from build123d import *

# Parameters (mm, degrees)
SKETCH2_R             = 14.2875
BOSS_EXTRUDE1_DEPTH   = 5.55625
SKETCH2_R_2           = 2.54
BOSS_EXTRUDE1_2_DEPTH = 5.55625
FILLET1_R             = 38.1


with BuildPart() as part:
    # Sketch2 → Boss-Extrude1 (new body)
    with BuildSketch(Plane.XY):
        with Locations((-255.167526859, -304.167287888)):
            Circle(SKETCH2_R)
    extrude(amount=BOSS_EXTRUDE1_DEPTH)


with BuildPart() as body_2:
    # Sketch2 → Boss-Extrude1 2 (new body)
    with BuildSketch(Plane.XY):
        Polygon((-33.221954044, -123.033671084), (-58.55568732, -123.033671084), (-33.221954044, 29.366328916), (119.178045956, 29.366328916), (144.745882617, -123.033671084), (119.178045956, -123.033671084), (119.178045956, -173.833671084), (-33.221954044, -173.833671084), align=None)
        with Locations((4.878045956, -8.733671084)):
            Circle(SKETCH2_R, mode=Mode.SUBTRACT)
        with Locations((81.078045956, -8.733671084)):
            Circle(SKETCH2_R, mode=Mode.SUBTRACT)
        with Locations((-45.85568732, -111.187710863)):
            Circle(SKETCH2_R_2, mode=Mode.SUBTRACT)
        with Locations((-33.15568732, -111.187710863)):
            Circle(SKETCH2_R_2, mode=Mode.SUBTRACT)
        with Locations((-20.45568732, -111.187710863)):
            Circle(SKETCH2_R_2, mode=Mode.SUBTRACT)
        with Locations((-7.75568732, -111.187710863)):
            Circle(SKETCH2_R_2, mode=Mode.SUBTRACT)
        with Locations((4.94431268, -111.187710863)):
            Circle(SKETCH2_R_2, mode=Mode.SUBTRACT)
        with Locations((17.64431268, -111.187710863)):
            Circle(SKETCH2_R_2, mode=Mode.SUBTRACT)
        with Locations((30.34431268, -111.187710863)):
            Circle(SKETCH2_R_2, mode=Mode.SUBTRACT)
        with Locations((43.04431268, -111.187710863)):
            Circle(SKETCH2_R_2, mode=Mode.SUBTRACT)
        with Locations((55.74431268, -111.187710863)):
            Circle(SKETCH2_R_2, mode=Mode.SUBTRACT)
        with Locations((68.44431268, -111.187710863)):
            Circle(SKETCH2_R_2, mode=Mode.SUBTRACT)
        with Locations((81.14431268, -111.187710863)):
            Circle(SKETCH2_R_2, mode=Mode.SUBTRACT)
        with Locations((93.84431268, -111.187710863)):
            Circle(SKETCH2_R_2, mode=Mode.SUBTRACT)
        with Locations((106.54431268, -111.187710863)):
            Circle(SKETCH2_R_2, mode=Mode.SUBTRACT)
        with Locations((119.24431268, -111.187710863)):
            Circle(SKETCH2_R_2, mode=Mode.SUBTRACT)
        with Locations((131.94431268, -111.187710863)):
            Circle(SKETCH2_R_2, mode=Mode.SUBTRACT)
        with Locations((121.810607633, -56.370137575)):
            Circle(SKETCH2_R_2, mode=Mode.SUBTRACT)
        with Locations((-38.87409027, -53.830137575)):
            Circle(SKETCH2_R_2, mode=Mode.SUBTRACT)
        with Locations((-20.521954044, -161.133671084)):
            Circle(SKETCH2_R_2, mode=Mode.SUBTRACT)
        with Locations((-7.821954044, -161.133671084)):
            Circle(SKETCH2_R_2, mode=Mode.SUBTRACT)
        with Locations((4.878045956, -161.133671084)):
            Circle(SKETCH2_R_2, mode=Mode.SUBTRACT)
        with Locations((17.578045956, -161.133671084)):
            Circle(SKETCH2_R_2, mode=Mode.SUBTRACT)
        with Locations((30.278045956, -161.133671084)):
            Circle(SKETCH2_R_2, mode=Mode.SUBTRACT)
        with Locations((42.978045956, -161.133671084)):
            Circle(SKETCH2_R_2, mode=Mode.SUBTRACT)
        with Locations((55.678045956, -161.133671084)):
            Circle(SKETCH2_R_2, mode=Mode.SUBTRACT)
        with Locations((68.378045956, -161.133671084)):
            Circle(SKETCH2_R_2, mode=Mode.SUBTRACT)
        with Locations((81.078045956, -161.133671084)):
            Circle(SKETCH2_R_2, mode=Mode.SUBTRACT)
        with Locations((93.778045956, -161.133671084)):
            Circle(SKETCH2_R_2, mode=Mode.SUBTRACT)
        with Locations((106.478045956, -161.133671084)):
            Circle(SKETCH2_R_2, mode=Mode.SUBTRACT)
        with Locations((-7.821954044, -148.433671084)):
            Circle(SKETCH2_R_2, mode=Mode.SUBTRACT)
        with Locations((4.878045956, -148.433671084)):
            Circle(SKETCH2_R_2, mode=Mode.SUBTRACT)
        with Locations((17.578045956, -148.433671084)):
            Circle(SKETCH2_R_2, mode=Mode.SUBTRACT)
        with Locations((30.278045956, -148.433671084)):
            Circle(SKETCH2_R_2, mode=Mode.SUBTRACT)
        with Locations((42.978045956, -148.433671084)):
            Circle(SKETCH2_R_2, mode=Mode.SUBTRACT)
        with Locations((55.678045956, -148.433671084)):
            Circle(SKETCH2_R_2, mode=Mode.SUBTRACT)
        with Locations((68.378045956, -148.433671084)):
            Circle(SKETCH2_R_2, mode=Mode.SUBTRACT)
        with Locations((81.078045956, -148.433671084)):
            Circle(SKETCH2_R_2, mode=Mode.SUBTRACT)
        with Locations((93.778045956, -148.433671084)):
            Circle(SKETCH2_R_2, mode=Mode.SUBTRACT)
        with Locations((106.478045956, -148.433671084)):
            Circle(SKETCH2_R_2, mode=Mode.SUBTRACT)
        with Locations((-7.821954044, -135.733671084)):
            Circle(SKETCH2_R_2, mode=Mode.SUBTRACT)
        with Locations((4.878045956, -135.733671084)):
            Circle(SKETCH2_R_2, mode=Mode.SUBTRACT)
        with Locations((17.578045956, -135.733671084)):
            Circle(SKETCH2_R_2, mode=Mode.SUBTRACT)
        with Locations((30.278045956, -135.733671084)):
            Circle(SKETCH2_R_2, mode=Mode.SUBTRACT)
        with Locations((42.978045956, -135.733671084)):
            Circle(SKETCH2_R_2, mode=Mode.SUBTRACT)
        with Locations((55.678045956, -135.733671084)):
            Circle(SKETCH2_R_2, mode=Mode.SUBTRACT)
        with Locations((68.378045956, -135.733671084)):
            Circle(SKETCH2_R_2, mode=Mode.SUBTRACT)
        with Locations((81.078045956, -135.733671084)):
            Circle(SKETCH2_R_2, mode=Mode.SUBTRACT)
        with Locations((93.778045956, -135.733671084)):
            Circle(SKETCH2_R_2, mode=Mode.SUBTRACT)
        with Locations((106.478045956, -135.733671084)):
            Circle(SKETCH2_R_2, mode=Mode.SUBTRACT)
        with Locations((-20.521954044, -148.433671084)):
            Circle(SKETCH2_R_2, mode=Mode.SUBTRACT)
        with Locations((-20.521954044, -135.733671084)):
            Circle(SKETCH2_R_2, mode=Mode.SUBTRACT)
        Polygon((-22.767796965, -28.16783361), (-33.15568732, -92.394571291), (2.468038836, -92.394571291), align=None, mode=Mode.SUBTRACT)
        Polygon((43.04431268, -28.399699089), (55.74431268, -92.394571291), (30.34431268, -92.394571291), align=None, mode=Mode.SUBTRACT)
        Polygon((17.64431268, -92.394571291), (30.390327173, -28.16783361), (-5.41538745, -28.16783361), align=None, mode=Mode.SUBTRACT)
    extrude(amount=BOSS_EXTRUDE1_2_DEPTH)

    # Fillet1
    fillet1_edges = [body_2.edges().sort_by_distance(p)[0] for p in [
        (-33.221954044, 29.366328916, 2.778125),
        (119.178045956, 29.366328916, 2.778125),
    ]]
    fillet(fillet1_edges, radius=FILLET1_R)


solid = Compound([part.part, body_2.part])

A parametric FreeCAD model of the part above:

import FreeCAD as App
import Part
import Sketcher
from FreeCAD import Vector
Q = App.Units.Quantity


def edges_at(feature, points):
    """Names of the edges that pass closest to the given points."""
    edges = feature.Shape.Edges
    near = lambda p: min(range(len(edges)), key=lambda i: edges[i].distToShape(Part.Vertex(*p))[0])
    return sorted({f"Edge{near(p) + 1}" for p in points})


def add_polygon(sketch, points):
    """Adds a closed chain of lines whose ends are joined by coincident constraints."""
    first, n = sketch.GeometryCount, len(points)
    for a, b in zip(points, points[1:] + points[:1]):
        sketch.addGeometry(Part.LineSegment(App.Vector(*a, 0), App.Vector(*b, 0)), False)
    for i in range(n):
        sketch.addConstraint(Sketcher.Constraint("Coincident", first + i, 2, first + (i + 1) % n, 1))

doc = App.newDocument("Part")
body = doc.addObject("PartDesign::Body", "Body")

# Sketch on XY plane
sketch1 = body.newObject("Sketcher::SketchObject", "Sketch")
sketch1.AttachmentSupport = (doc.getObject("XY_Plane"), [""])
sketch1.MapMode = "FlatFace"
sketch1.addGeometry(Part.Circle(Vector(-255.167527, -304.167288, 0), Vector(0, 0, 1), 14.2875), False)
sketch1.addConstraint([
    Sketcher.Constraint("Diameter", 0, Q("1.125 in")),
    Sketcher.Constraint("DistanceX", 0, 3, -1, 1, Q("255.167527 mm")),
    Sketcher.Constraint("DistanceY", 0, 3, -1, 1, Q("304.167288 mm")),
])
pad1 = body.newObject("PartDesign::Pad", "Pad")
pad1.Profile = sketch1
pad1.Length = Q("0.21875 in")
body2 = doc.addObject("PartDesign::Body", "Body001")

# Sketch on XY plane
sketch2 = body2.newObject("Sketcher::SketchObject", "Sketch001")
sketch2.AttachmentSupport = (doc.getObject("XY_Plane001"), [""])
sketch2.MapMode = "FlatFace"
add_polygon(sketch2, [(-58.555687, -123.033671), (-33.221954, -123.033671), (-33.221954, -173.833671), (119.178046, -173.833671), (119.178046, -123.033671), (144.745883, -123.033671), (119.178046, 29.366329), (-33.221954, 29.366329)])  # lines 0-7
sketch2.addGeometry(Part.Circle(Vector(106.478046, -161.133671, 0), Vector(0, 0, 1), 2.54), False)  # 8
sketch2.addGeometry(Part.Circle(Vector(93.778046, -161.133671, 0), Vector(0, 0, 1), 2.54), False)  # 9
sketch2.addGeometry(Part.Circle(Vector(106.478046, -148.433671, 0), Vector(0, 0, 1), 2.54), False)  # 10
sketch2.addGeometry(Part.Circle(Vector(93.778046, -148.433671, 0), Vector(0, 0, 1), 2.54), False)  # 11
sketch2.addGeometry(Part.Circle(Vector(106.478046, -135.733671, 0), Vector(0, 0, 1), 2.54), False)  # 12
sketch2.addGeometry(Part.Circle(Vector(93.778046, -135.733671, 0), Vector(0, 0, 1), 2.54), False)  # 13
sketch2.addGeometry(Part.Circle(Vector(81.078046, -161.133671, 0), Vector(0, 0, 1), 2.54), False)  # 14
sketch2.addGeometry(Part.Circle(Vector(68.378046, -161.133671, 0), Vector(0, 0, 1), 2.54), False)  # 15
sketch2.addGeometry(Part.Circle(Vector(81.078046, -148.433671, 0), Vector(0, 0, 1), 2.54), False)  # 16
sketch2.addGeometry(Part.Circle(Vector(68.378046, -148.433671, 0), Vector(0, 0, 1), 2.54), False)  # 17
sketch2.addGeometry(Part.Circle(Vector(55.678046, -161.133671, 0), Vector(0, 0, 1), 2.54), False)  # 18
sketch2.addGeometry(Part.Circle(Vector(55.678046, -148.433671, 0), Vector(0, 0, 1), 2.54), False)  # 19
sketch2.addGeometry(Part.Circle(Vector(81.078046, -135.733671, 0), Vector(0, 0, 1), 2.54), False)  # 20
sketch2.addGeometry(Part.Circle(Vector(68.378046, -135.733671, 0), Vector(0, 0, 1), 2.54), False)  # 21
sketch2.addGeometry(Part.Circle(Vector(55.678046, -135.733671, 0), Vector(0, 0, 1), 2.54), False)  # 22
sketch2.addGeometry(Part.Circle(Vector(131.944313, -111.187711, 0), Vector(0, 0, 1), 2.54), False)  # 23
sketch2.addGeometry(Part.Circle(Vector(119.244313, -111.187711, 0), Vector(0, 0, 1), 2.54), False)  # 24
sketch2.addGeometry(Part.Circle(Vector(106.544313, -111.187711, 0), Vector(0, 0, 1), 2.54), False)  # 25
sketch2.addGeometry(Part.Circle(Vector(93.844313, -111.187711, 0), Vector(0, 0, 1), 2.54), False)  # 26
sketch2.addGeometry(Part.Circle(Vector(81.144313, -111.187711, 0), Vector(0, 0, 1), 2.54), False)  # 27
sketch2.addGeometry(Part.Circle(Vector(68.444313, -111.187711, 0), Vector(0, 0, 1), 2.54), False)  # 28
sketch2.addGeometry(Part.Circle(Vector(55.744313, -111.187711, 0), Vector(0, 0, 1), 2.54), False)  # 29
sketch2.addGeometry(Part.Circle(Vector(42.978046, -161.133671, 0), Vector(0, 0, 1), 2.54), False)  # 30
sketch2.addGeometry(Part.Circle(Vector(30.278046, -161.133671, 0), Vector(0, 0, 1), 2.54), False)  # 31
sketch2.addGeometry(Part.Circle(Vector(42.978046, -148.433671, 0), Vector(0, 0, 1), 2.54), False)  # 32
sketch2.addGeometry(Part.Circle(Vector(30.278046, -148.433671, 0), Vector(0, 0, 1), 2.54), False)  # 33
sketch2.addGeometry(Part.Circle(Vector(17.578046, -161.133671, 0), Vector(0, 0, 1), 2.54), False)  # 34
sketch2.addGeometry(Part.Circle(Vector(4.878046, -161.133671, 0), Vector(0, 0, 1), 2.54), False)  # 35
sketch2.addGeometry(Part.Circle(Vector(17.578046, -148.433671, 0), Vector(0, 0, 1), 2.54), False)  # 36
sketch2.addGeometry(Part.Circle(Vector(4.878046, -148.433671, 0), Vector(0, 0, 1), 2.54), False)  # 37
sketch2.addGeometry(Part.Circle(Vector(42.978046, -135.733671, 0), Vector(0, 0, 1), 2.54), False)  # 38
sketch2.addGeometry(Part.Circle(Vector(30.278046, -135.733671, 0), Vector(0, 0, 1), 2.54), False)  # 39
sketch2.addGeometry(Part.Circle(Vector(17.578046, -135.733671, 0), Vector(0, 0, 1), 2.54), False)  # 40
sketch2.addGeometry(Part.Circle(Vector(4.878046, -135.733671, 0), Vector(0, 0, 1), 2.54), False)  # 41
sketch2.addGeometry(Part.Circle(Vector(-7.821954, -161.133671, 0), Vector(0, 0, 1), 2.54), False)  # 42
sketch2.addGeometry(Part.Circle(Vector(-20.521954, -161.133671, 0), Vector(0, 0, 1), 2.54), False)  # 43
sketch2.addGeometry(Part.Circle(Vector(-7.821954, -148.433671, 0), Vector(0, 0, 1), 2.54), False)  # 44
sketch2.addGeometry(Part.Circle(Vector(-20.521954, -148.433671, 0), Vector(0, 0, 1), 2.54), False)  # 45
sketch2.addGeometry(Part.Circle(Vector(-7.821954, -135.733671, 0), Vector(0, 0, 1), 2.54), False)  # 46
sketch2.addGeometry(Part.Circle(Vector(-20.521954, -135.733671, 0), Vector(0, 0, 1), 2.54), False)  # 47
sketch2.addGeometry(Part.Circle(Vector(43.044313, -111.187711, 0), Vector(0, 0, 1), 2.54), False)  # 48
sketch2.addGeometry(Part.Circle(Vector(30.344313, -111.187711, 0), Vector(0, 0, 1), 2.54), False)  # 49
sketch2.addGeometry(Part.Circle(Vector(17.644313, -111.187711, 0), Vector(0, 0, 1), 2.54), False)  # 50
sketch2.addGeometry(Part.Circle(Vector(4.944313, -111.187711, 0), Vector(0, 0, 1), 2.54), False)  # 51
sketch2.addGeometry(Part.Circle(Vector(-7.755687, -111.187711, 0), Vector(0, 0, 1), 2.54), False)  # 52
sketch2.addGeometry(Part.Circle(Vector(-20.455687, -111.187711, 0), Vector(0, 0, 1), 2.54), False)  # 53
sketch2.addGeometry(Part.Circle(Vector(-33.155687, -111.187711, 0), Vector(0, 0, 1), 2.54), False)  # 54
sketch2.addGeometry(Part.Circle(Vector(-45.855687, -111.187711, 0), Vector(0, 0, 1), 2.54), False)  # 55
sketch2.addGeometry(Part.Circle(Vector(121.810608, -56.370138, 0), Vector(0, 0, 1), 2.54), False)  # 56
add_polygon(sketch2, [(43.044313, -28.399699), (55.744313, -92.394571), (30.344313, -92.394571)])  # lines 57-59
sketch2.addGeometry(Part.Circle(Vector(81.078046, -8.733671, 0), Vector(0, 0, 1), 14.2875), False)  # 60
add_polygon(sketch2, [(17.644313, -92.394571), (-5.415387, -28.167834), (30.390327, -28.167834)])  # lines 61-63
add_polygon(sketch2, [(-22.767797, -28.167834), (2.468039, -92.394571), (-33.155687, -92.394571)])  # lines 64-66
sketch2.addGeometry(Part.Circle(Vector(-38.87409, -53.830138, 0), Vector(0, 0, 1), 2.54), False)  # 67
sketch2.addGeometry(Part.Circle(Vector(4.878046, -8.733671, 0), Vector(0, 0, 1), 14.2875), False)  # 68
sketch2.addConstraint([
    Sketcher.Constraint("Horizontal", 0),
    Sketcher.Constraint("Vertical", 1),
    Sketcher.Constraint("Horizontal", 2),
    Sketcher.Constraint("Vertical", 3),
    Sketcher.Constraint("Horizontal", 4),
    Sketcher.Constraint("Horizontal", 6),
    Sketcher.Constraint("Horizontal", 58),
    Sketcher.Constraint("Horizontal", 62),
    Sketcher.Constraint("Horizontal", 65),
    Sketcher.Constraint("Equal", 8, 9),
    Sketcher.Constraint("Equal", 9, 10),
    Sketcher.Constraint("Equal", 10, 11),
    Sketcher.Constraint("Equal", 11, 12),
    Sketcher.Constraint("Equal", 12, 13),
    Sketcher.Constraint("Equal", 13, 14),
    Sketcher.Constraint("Equal", 14, 15),
    Sketcher.Constraint("Equal", 15, 16),
    Sketcher.Constraint("Equal", 16, 17),
    Sketcher.Constraint("Equal", 17, 18),
    Sketcher.Constraint("Equal", 18, 19),
    Sketcher.Constraint("Equal", 19, 20),
    Sketcher.Constraint("Equal", 20, 21),
    Sketcher.Constraint("Equal", 21, 22),
    Sketcher.Constraint("Equal", 22, 23),
    Sketcher.Constraint("Equal", 23, 24),
    Sketcher.Constraint("Equal", 24, 25),
    Sketcher.Constraint("Equal", 25, 26),
    Sketcher.Constraint("Equal", 26, 27),
    Sketcher.Constraint("Equal", 27, 28),
    Sketcher.Constraint("Equal", 28, 29),
    Sketcher.Constraint("Equal", 29, 30),
    Sketcher.Constraint("Equal", 30, 31),
    Sketcher.Constraint("Equal", 31, 32),
    Sketcher.Constraint("Equal", 32, 33),
    Sketcher.Constraint("Equal", 33, 34),
    Sketcher.Constraint("Equal", 34, 35),
    Sketcher.Constraint("Equal", 35, 36),
    Sketcher.Constraint("Equal", 36, 37),
    Sketcher.Constraint("Equal", 37, 38),
    Sketcher.Constraint("Equal", 38, 39),
    Sketcher.Constraint("Equal", 39, 40),
    Sketcher.Constraint("Equal", 40, 41),
    Sketcher.Constraint("Equal", 41, 42),
    Sketcher.Constraint("Equal", 42, 43),
    Sketcher.Constraint("Equal", 43, 44),
    Sketcher.Constraint("Equal", 44, 45),
    Sketcher.Constraint("Equal", 45, 46),
    Sketcher.Constraint("Equal", 46, 47),
    Sketcher.Constraint("Equal", 47, 48),
    Sketcher.Constraint("Equal", 48, 49),
    Sketcher.Constraint("Equal", 49, 50),
    Sketcher.Constraint("Equal", 50, 51),
    Sketcher.Constraint("Equal", 51, 52),
    Sketcher.Constraint("Equal", 52, 53),
    Sketcher.Constraint("Equal", 53, 54),
    Sketcher.Constraint("Equal", 54, 55),
    Sketcher.Constraint("Equal", 55, 56),
    Sketcher.Constraint("Equal", 56, 67),
    Sketcher.Constraint("Equal", 60, 68),
    Sketcher.Constraint("Parallel", 59, 63),
    Sketcher.Constraint("Horizontal", 8, 3, 9, 3),
    Sketcher.Constraint("Horizontal", 10, 3, 11, 3),
    Sketcher.Constraint("Horizontal", 12, 3, 13, 3),
    Sketcher.Constraint("Horizontal", 9, 3, 14, 3),
    Sketcher.Constraint("Horizontal", 14, 3, 15, 3),
    Sketcher.Constraint("Horizontal", 11, 3, 16, 3),
    Sketcher.Constraint("Horizontal", 16, 3, 17, 3),
    Sketcher.Constraint("Horizontal", 15, 3, 18, 3),
    Sketcher.Constraint("Horizontal", 17, 3, 19, 3),
    Sketcher.Constraint("Horizontal", 13, 3, 20, 3),
    Sketcher.Constraint("Horizontal", 20, 3, 21, 3),
    Sketcher.Constraint("Horizontal", 21, 3, 22, 3),
    Sketcher.Constraint("Horizontal", 23, 3, 24, 3),
    Sketcher.Constraint("Horizontal", 24, 3, 25, 3),
    Sketcher.Constraint("Horizontal", 25, 3, 26, 3),
    Sketcher.Constraint("Horizontal", 26, 3, 27, 3),
    Sketcher.Constraint("Horizontal", 27, 3, 28, 3),
    Sketcher.Constraint("Horizontal", 28, 3, 29, 3),
    Sketcher.Constraint("Horizontal", 18, 3, 30, 3),
    Sketcher.Constraint("Horizontal", 30, 3, 31, 3),
    Sketcher.Constraint("Horizontal", 19, 3, 32, 3),
    Sketcher.Constraint("Horizontal", 32, 3, 33, 3),
    Sketcher.Constraint("Horizontal", 31, 3, 34, 3),
    Sketcher.Constraint("Horizontal", 34, 3, 35, 3),
    Sketcher.Constraint("Horizontal", 33, 3, 36, 3),
    Sketcher.Constraint("Horizontal", 36, 3, 37, 3),
    Sketcher.Constraint("Horizontal", 22, 3, 38, 3),
    Sketcher.Constraint("Horizontal", 38, 3, 39, 3),
    Sketcher.Constraint("Horizontal", 39, 3, 40, 3),
    Sketcher.Constraint("Horizontal", 40, 3, 41, 3),
    Sketcher.Constraint("Horizontal", 35, 3, 42, 3),
    Sketcher.Constraint("Horizontal", 42, 3, 43, 3),
    Sketcher.Constraint("Horizontal", 37, 3, 44, 3),
    Sketcher.Constraint("Horizontal", 44, 3, 45, 3),
    Sketcher.Constraint("Horizontal", 41, 3, 46, 3),
    Sketcher.Constraint("Horizontal", 46, 3, 47, 3),
    Sketcher.Constraint("Horizontal", 29, 3, 48, 3),
    Sketcher.Constraint("Horizontal", 48, 3, 49, 3),
    Sketcher.Constraint("Horizontal", 49, 3, 50, 3),
    Sketcher.Constraint("Horizontal", 50, 3, 51, 3),
    Sketcher.Constraint("Horizontal", 51, 3, 52, 3),
    Sketcher.Constraint("Horizontal", 52, 3, 53, 3),
    Sketcher.Constraint("Horizontal", 53, 3, 54, 3),
    Sketcher.Constraint("Horizontal", 54, 3, 55, 3),
    Sketcher.Constraint("Horizontal", 60, 3, 68, 3),
    Sketcher.Constraint("Horizontal", 0, 2, 3, 2),
    Sketcher.Constraint("Horizontal", 58, 2, 63, 2),
    Sketcher.Constraint("Horizontal", 63, 2, 64, 2),
    Sketcher.Constraint("Horizontal", 62, 2, 66, 2),
    Sketcher.Constraint("Vertical", 8, 3, 10, 3),
    Sketcher.Constraint("Vertical", 9, 3, 11, 3),
    Sketcher.Constraint("Vertical", 10, 3, 12, 3),
    Sketcher.Constraint("Vertical", 11, 3, 13, 3),
    Sketcher.Constraint("Vertical", 14, 3, 16, 3),
    Sketcher.Constraint("Vertical", 15, 3, 17, 3),
    Sketcher.Constraint("Vertical", 18, 3, 19, 3),
    Sketcher.Constraint("Vertical", 16, 3, 20, 3),
    Sketcher.Constraint("Vertical", 17, 3, 21, 3),
    Sketcher.Constraint("Vertical", 19, 3, 22, 3),
    Sketcher.Constraint("Vertical", 30, 3, 32, 3),
    Sketcher.Constraint("Vertical", 31, 3, 33, 3),
    Sketcher.Constraint("Vertical", 34, 3, 36, 3),
    Sketcher.Constraint("Vertical", 35, 3, 37, 3),
    Sketcher.Constraint("Vertical", 32, 3, 38, 3),
    Sketcher.Constraint("Vertical", 33, 3, 39, 3),
    Sketcher.Constraint("Vertical", 36, 3, 40, 3),
    Sketcher.Constraint("Vertical", 37, 3, 41, 3),
    Sketcher.Constraint("Vertical", 42, 3, 44, 3),
    Sketcher.Constraint("Vertical", 43, 3, 45, 3),
    Sketcher.Constraint("Vertical", 44, 3, 46, 3),
    Sketcher.Constraint("Vertical", 45, 3, 47, 3),
    Sketcher.Constraint("Vertical", 20, 3, 60, 3),
    Sketcher.Constraint("Vertical", 41, 3, 68, 3),
    Sketcher.Constraint("Vertical", 3, 2, 5, 2),
    Sketcher.Constraint("Vertical", 1, 2, 6, 2),
    Sketcher.Constraint("Vertical", 29, 3, 57, 2),
    Sketcher.Constraint("Vertical", 49, 3, 58, 2),
    Sketcher.Constraint("Vertical", 48, 3, 59, 2),
    Sketcher.Constraint("Vertical", 50, 3, 63, 2),
    Sketcher.Constraint("Vertical", 54, 3, 65, 2),
    Sketcher.Constraint("Equal", 57, 59),
    Sketcher.Constraint("Diameter", 8, Q("0.2 in")),
    Sketcher.Constraint("DistanceX", 2, 1, 2, 2, Q("6 in")),
    Sketcher.Constraint("DistanceX", 58, 2, 58, 1, Q("1 in")),
    Sketcher.Constraint("DistanceY", 1, 2, 1, 1, Q("2 in")),
    Sketcher.Constraint("Diameter", 60, Q("1.125 in")),
    Sketcher.Constraint("DistanceY", 59, 2, -1, 1, Q("28.399699 mm")),
    Sketcher.Constraint("Distance", 5, Q("154.529849 mm")),
    Sketcher.Constraint("Distance", 63, Q("65.479269 mm")),
    Sketcher.Constraint("Distance", 66, Q("65.061372 mm")),
    Sketcher.Constraint("DistanceX", 0, 1, 0, 2, Q("25.333733 mm")),
    Sketcher.Constraint("DistanceX", 4, 1, 4, 2, Q("25.567837 mm")),
    Sketcher.Constraint("DistanceX", 62, 1, 62, 2, Q("35.805715 mm")),
    Sketcher.Constraint("DistanceX", 65, 2, 65, 1, Q("35.623726 mm")),
    Sketcher.Constraint("DistanceY", 8, 3, -1, 1, Q("161.133671 mm")),
    Sketcher.Constraint("DistanceY", 10, 3, -1, 1, Q("148.433671 mm")),
    Sketcher.Constraint("DistanceY", 12, 3, -1, 1, Q("135.733671 mm")),
    Sketcher.Constraint("DistanceY", 23, 3, -1, 1, Q("111.187711 mm")),
    Sketcher.Constraint("DistanceY", 60, 3, -1, 1, Q("8.733671 mm")),
    Sketcher.Constraint("DistanceX", 67, 3, -1, 1, Q("38.87409 mm")),
    Sketcher.Constraint("DistanceY", 0, 2, -1, 1, Q("123.033671 mm")),
    Sketcher.Constraint("DistanceY", 57, 2, -1, 1, Q("92.394571 mm")),
    Sketcher.Constraint("DistanceX", -1, 1, 64, 2, Q("2.468039 mm")),
    Sketcher.Constraint("DistanceX", -1, 1, 8, 3, Q("106.478046 mm")),
    Sketcher.Constraint("DistanceX", -1, 1, 9, 3, Q("93.778046 mm")),
    Sketcher.Constraint("DistanceX", -1, 1, 14, 3, Q("81.078046 mm")),
    Sketcher.Constraint("DistanceX", -1, 1, 15, 3, Q("68.378046 mm")),
    Sketcher.Constraint("DistanceX", -1, 1, 18, 3, Q("55.678046 mm")),
    Sketcher.Constraint("DistanceX", -1, 1, 23, 3, Q("131.944313 mm")),
    Sketcher.Constraint("DistanceX", -1, 1, 24, 3, Q("119.244313 mm")),
    Sketcher.Constraint("DistanceX", -1, 1, 25, 3, Q("106.544313 mm")),
    Sketcher.Constraint("DistanceX", -1, 1, 26, 3, Q("93.844313 mm")),
    Sketcher.Constraint("DistanceX", -1, 1, 27, 3, Q("81.144313 mm")),
    Sketcher.Constraint("DistanceX", -1, 1, 28, 3, Q("68.444313 mm")),
    Sketcher.Constraint("DistanceX", -1, 1, 29, 3, Q("55.744313 mm")),
    Sketcher.Constraint("DistanceX", -1, 1, 30, 3, Q("42.978046 mm")),
    Sketcher.Constraint("DistanceX", -1, 1, 31, 3, Q("30.278046 mm")),
    Sketcher.Constraint("DistanceX", -1, 1, 34, 3, Q("17.578046 mm")),
    Sketcher.Constraint("DistanceX", -1, 1, 35, 3, Q("4.878046 mm")),
    Sketcher.Constraint("DistanceX", 42, 3, -1, 1, Q("7.821954 mm")),
    Sketcher.Constraint("DistanceX", 43, 3, -1, 1, Q("20.521954 mm")),
    Sketcher.Constraint("DistanceX", -1, 1, 50, 3, Q("17.644313 mm")),
    Sketcher.Constraint("DistanceX", -1, 1, 51, 3, Q("4.944313 mm")),
    Sketcher.Constraint("DistanceX", 52, 3, -1, 1, Q("7.755687 mm")),
    Sketcher.Constraint("DistanceX", 53, 3, -1, 1, Q("20.455687 mm")),
    Sketcher.Constraint("DistanceX", 55, 3, -1, 1, Q("45.855687 mm")),
    Sketcher.Constraint("DistanceX", -1, 1, 56, 3, Q("121.810608 mm")),
    Sketcher.Constraint("DistanceY", 56, 3, -1, 1, Q("56.370138 mm")),
    Sketcher.Constraint("DistanceY", 67, 3, -1, 1, Q("53.830138 mm")),
    Sketcher.Constraint("DistanceX", 0, 2, -1, 1, Q("33.221954 mm")),
])
pad2 = body2.newObject("PartDesign::Pad", "Pad001")
pad2.Profile = sketch2
pad2.Length = Q("0.21875 in")
doc.recompute()

fillet = body2.newObject("PartDesign::Fillet", "Fillet")
fillet.Base = (pad2, edges_at(pad2, [(-33.222, 29.366, 2.778), (119.178, 29.366, 2.778)]))
fillet.Radius = Q("1.5 in")

doc.recompute()
